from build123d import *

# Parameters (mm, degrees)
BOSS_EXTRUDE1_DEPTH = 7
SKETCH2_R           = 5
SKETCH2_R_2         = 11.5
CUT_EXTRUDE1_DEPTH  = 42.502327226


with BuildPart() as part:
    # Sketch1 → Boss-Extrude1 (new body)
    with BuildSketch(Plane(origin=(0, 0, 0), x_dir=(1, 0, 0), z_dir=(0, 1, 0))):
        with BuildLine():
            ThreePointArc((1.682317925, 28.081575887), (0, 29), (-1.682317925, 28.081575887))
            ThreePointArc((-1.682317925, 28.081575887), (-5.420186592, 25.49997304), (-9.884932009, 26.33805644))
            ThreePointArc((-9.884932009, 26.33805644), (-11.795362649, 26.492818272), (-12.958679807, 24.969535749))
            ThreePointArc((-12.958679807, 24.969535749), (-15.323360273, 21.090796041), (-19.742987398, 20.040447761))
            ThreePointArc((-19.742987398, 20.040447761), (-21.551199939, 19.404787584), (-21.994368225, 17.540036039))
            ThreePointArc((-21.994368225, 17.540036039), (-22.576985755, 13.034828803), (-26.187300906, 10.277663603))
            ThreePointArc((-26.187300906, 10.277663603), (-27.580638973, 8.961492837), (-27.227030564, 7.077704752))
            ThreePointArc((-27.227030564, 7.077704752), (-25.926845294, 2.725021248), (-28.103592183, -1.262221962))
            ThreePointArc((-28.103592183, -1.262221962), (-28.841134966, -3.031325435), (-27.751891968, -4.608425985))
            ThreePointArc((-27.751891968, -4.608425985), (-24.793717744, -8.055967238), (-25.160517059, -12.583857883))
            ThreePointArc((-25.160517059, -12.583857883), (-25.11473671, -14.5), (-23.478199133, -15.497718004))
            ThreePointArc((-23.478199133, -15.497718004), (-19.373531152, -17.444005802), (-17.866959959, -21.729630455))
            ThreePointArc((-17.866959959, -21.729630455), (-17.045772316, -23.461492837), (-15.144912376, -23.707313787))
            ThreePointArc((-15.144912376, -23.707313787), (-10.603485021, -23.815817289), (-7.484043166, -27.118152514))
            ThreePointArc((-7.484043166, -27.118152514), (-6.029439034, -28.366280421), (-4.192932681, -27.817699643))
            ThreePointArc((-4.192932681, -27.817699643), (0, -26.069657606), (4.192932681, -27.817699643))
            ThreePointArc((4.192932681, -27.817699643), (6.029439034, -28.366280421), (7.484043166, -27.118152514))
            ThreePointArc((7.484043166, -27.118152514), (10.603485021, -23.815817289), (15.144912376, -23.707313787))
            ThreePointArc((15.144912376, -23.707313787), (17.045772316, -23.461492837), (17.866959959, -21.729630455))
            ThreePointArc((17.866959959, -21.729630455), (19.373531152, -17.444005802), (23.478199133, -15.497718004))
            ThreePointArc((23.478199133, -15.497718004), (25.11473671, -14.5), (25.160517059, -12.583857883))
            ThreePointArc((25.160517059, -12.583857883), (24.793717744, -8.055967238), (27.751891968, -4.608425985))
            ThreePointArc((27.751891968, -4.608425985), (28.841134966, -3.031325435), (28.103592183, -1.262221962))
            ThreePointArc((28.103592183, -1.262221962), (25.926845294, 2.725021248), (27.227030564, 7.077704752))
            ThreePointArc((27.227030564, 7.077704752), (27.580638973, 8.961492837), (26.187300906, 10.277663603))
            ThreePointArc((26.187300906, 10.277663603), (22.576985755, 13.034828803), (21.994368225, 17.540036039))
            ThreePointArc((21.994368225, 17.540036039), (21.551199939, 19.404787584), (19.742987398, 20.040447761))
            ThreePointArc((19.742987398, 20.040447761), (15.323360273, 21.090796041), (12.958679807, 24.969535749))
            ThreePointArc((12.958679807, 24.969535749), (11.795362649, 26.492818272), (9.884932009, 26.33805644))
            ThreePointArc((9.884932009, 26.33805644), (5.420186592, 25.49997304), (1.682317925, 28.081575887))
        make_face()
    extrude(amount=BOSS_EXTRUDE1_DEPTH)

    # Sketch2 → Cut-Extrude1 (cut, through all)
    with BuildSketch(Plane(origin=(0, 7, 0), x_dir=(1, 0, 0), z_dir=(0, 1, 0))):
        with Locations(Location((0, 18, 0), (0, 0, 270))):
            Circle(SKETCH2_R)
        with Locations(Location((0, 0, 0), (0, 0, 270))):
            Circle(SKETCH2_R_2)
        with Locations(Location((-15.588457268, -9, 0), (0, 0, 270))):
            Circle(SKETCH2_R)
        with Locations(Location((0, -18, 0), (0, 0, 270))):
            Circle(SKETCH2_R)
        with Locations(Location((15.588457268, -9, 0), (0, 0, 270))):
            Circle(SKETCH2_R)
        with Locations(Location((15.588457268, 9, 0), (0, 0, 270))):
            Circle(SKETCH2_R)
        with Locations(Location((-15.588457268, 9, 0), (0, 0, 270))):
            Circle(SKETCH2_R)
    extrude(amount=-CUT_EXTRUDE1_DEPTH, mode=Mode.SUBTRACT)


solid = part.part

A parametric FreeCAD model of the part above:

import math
import FreeCAD as App
import Part
import Sketcher
from FreeCAD import Vector
Q = App.Units.Quantity

doc = App.newDocument("Part")
body = doc.addObject("PartDesign::Body", "Body")

# Sketch on XZ plane
sketch1 = body.newObject("Sketcher::SketchObject", "Sketch")
sketch1.AttachmentSupport = (doc.getObject("XZ_Plane"), [""])
sketch1.MapMode = "FlatFace"
sketch1.addGeometry([
    Part.ArcOfCircle(Part.Circle(Vector(0, -27, 0), Vector(0, 0, 1), 2), math.radians(-147.262706), math.radians(-32.737294)),  # 0
    Part.ArcOfCircle(Part.Circle(Vector(-6.647427, -31.273685, 0), Vector(0, 0, 1), 5.9027), math.radians(32.737294), math.radians(123.262706)),  # 1
    Part.ArcOfCircle(Part.Circle(Vector(-10.981889, -24.665727, 0), Vector(0, 0, 1), 2), math.radians(-171.262706), math.radians(-56.737294)),  # 2
    Part.ArcOfCircle(Part.Circle(Vector(-18.79288, -25.866181, 0), Vector(0, 0, 1), 5.9027), math.radians(8.737294), math.radians(99.262706)),  # 3
    Part.ArcOfCircle(Part.Circle(Vector(-20.06491, -18.066526, 0), Vector(0, 0, 1), 2), math.radians(164.737294), math.radians(279.262706)),  # 4
    Part.ArcOfCircle(Part.Circle(Vector(-27.688874, -15.986179, 0), Vector(0, 0, 1), 5.9027), math.radians(-15.262706), math.radians(75.262706)),  # 5
    Part.ArcOfCircle(Part.Circle(Vector(-25.678526, -8.343459, 0), Vector(0, 0, 1), 2), math.radians(140.737294), math.radians(255.262706)),  # 6
    Part.ArcOfCircle(Part.Circle(Vector(-31.79721, -3.342021, 0), Vector(0, 0, 1), 5.9027), math.radians(-39.262706), math.radians(51.262706)),  # 7
    Part.ArcOfCircle(Part.Circle(Vector(-26.852091, 2.822269, 0), Vector(0, 0, 1), 2), math.radians(116.737294), math.radians(231.262706)),  # 8
    Part.ArcOfCircle(Part.Circle(Vector(-30.407519, 9.880002, 0), Vector(0, 0, 1), 5.9027), math.radians(-63.262706), math.radians(27.262706)),  # 9
    Part.ArcOfCircle(Part.Circle(Vector(-23.382686, 13.5, 0), Vector(0, 0, 1), 2), math.radians(92.737294), math.radians(207.262706)),  # 10
    Part.ArcOfCircle(Part.Circle(Vector(-23.760092, 21.393683, 0), Vector(0, 0, 1), 5.9027), math.radians(-87.262706), math.radians(3.262706)),  # 11
    Part.ArcOfCircle(Part.Circle(Vector(-15.870202, 21.843459, 0), Vector(0, 0, 1), 2), math.radians(68.737294), math.radians(183.262706)),  # 12
    Part.ArcOfCircle(Part.Circle(Vector(-13.004329, 29.208202, 0), Vector(0, 0, 1), 5.9027), math.radians(-111.262706), math.radians(-20.737294)),  # 13
    Part.ArcOfCircle(Part.Circle(Vector(-5.613616, 26.409985, 0), Vector(0, 0, 1), 2), math.radians(44.737294), math.radians(159.262706)),  # 14
    Part.ArcOfCircle(Part.Circle(Vector(0, 31.972358, 0), Vector(0, 0, 1), 5.9027), math.radians(-135.262706), math.radians(-44.737294)),  # 15
    Part.ArcOfCircle(Part.Circle(Vector(5.613616, 26.409985, 0), Vector(0, 0, 1), 2), math.radians(20.737294), math.radians(135.262706)),  # 16
    Part.ArcOfCircle(Part.Circle(Vector(13.004329, 29.208202, 0), Vector(0, 0, 1), 5.9027), math.radians(-159.262706), math.radians(-68.737294)),  # 17
    Part.ArcOfCircle(Part.Circle(Vector(15.870202, 21.843459, 0), Vector(0, 0, 1), 2), math.radians(-3.262706), math.radians(111.262706)),  # 18
    Part.ArcOfCircle(Part.Circle(Vector(23.760092, 21.393683, 0), Vector(0, 0, 1), 5.9027), math.radians(176.737294), math.radians(267.262706)),  # 19
    Part.ArcOfCircle(Part.Circle(Vector(23.382686, 13.5, 0), Vector(0, 0, 1), 2), math.radians(-27.262706), math.radians(87.262706)),  # 20
    Part.ArcOfCircle(Part.Circle(Vector(30.407519, 9.880002, 0), Vector(0, 0, 1), 5.9027), math.radians(152.737294), math.radians(243.262706)),  # 21
    Part.ArcOfCircle(Part.Circle(Vector(26.852091, 2.822269, 0), Vector(0, 0, 1), 2), math.radians(-51.262706), math.radians(63.262706)),  # 22
    Part.ArcOfCircle(Part.Circle(Vector(31.79721, -3.342021, 0), Vector(0, 0, 1), 5.9027), math.radians(128.737294), math.radians(219.262706)),  # 23
    Part.ArcOfCircle(Part.Circle(Vector(25.678526, -8.343459, 0), Vector(0, 0, 1), 2), math.radians(-75.262706), math.radians(39.262706)),  # 24
    Part.ArcOfCircle(Part.Circle(Vector(27.688874, -15.986179, 0), Vector(0, 0, 1), 5.9027), math.radians(104.737294), math.radians(195.262706)),  # 25
    Part.ArcOfCircle(Part.Circle(Vector(20.06491, -18.066526, 0), Vector(0, 0, 1), 2), math.radians(-99.262706), math.radians(15.262706)),  # 26
    Part.ArcOfCircle(Part.Circle(Vector(18.79288, -25.866181, 0), Vector(0, 0, 1), 5.9027), math.radians(80.737294), math.radians(171.262706)),  # 27
    Part.ArcOfCircle(Part.Circle(Vector(10.981889, -24.665727, 0), Vector(0, 0, 1), 2), math.radians(-123.262706), math.radians(-8.737294)),  # 28
    Part.ArcOfCircle(Part.Circle(Vector(6.647427, -31.273685, 0), Vector(0, 0, 1), 5.9027), math.radians(56.737294), math.radians(147.262706)),  # 29
], False)
sketch1.addConstraint([
    Sketcher.Constraint("Coincident", 0, 1, 1, 1),
    Sketcher.Constraint("Coincident", 1, 2, 2, 2),
    Sketcher.Constraint("Coincident", 2, 1, 3, 1),
    Sketcher.Constraint("Coincident", 3, 2, 4, 2),
    Sketcher.Constraint("Coincident", 4, 1, 5, 1),
    Sketcher.Constraint("Coincident", 5, 2, 6, 2),
    Sketcher.Constraint("Coincident", 6, 1, 7, 1),
    Sketcher.Constraint("Coincident", 7, 2, 8, 2),
    Sketcher.Constraint("Coincident", 8, 1, 9, 1),
    Sketcher.Constraint("Coincident", 9, 2, 10, 2),
    Sketcher.Constraint("Coincident", 10, 1, 11, 1),
    Sketcher.Constraint("Coincident", 11, 2, 12, 2),
    Sketcher.Constraint("Coincident", 12, 1, 13, 1),
    Sketcher.Constraint("Coincident", 13, 2, 14, 2),
    Sketcher.Constraint("Coincident", 14, 1, 15, 1),
    Sketcher.Constraint("Coincident", 15, 2, 16, 2),
    Sketcher.Constraint("Coincident", 16, 1, 17, 1),
    Sketcher.Constraint("Coincident", 17, 2, 18, 2),
    Sketcher.Constraint("Coincident", 18, 1, 19, 1),
    Sketcher.Constraint("Coincident", 19, 2, 20, 2),
    Sketcher.Constraint("Coincident", 20, 1, 21, 1),
    Sketcher.Constraint("Coincident", 21, 2, 22, 2),
    Sketcher.Constraint("Coincident", 22, 1, 23, 1),
    Sketcher.Constraint("Coincident", 23, 2, 24, 2),
    Sketcher.Constraint("Coincident", 24, 1, 25, 1),
    Sketcher.Constraint("Coincident", 25, 2, 26, 2),
    Sketcher.Constraint("Coincident", 26, 1, 27, 1),
    Sketcher.Constraint("Coincident", 27, 2, 28, 2),
    Sketcher.Constraint("Coincident", 28, 1, 29, 1),
    Sketcher.Constraint("Coincident", 29, 2, 0, 2),
    Sketcher.Constraint("PointOnObject", 0, 3, -2),
    Sketcher.Constraint("PointOnObject", 15, 3, -2),
    Sketcher.Constraint("Radius", 0, Q("2 mm")),
    Sketcher.Constraint("Radius", 2, Q("2 mm")),
    Sketcher.Constraint("Radius", 4, Q("2 mm")),
    Sketcher.Constraint("Radius", 6, Q("2 mm")),
    Sketcher.Constraint("Radius", 8, Q("2 mm")),
    Sketcher.Constraint("Radius", 10, Q("2 mm")),
    Sketcher.Constraint("Radius", 12, Q("2 mm")),
    Sketcher.Constraint("Radius", 14, Q("2 mm")),
    Sketcher.Constraint("Radius", 16, Q("2 mm")),
    Sketcher.Constraint("Radius", 18, Q("2 mm")),
    Sketcher.Constraint("Radius", 20, Q("2 mm")),
    Sketcher.Constraint("Radius", 22, Q("2 mm")),
    Sketcher.Constraint("Radius", 24, Q("2 mm")),
    Sketcher.Constraint("Radius", 26, Q("2 mm")),
    Sketcher.Constraint("Radius", 28, Q("2 mm")),
    Sketcher.Constraint("DistanceY", 0, 3, -1, 1, Q("27 mm")),
    Sketcher.Constraint("DistanceY", -1, 1, 10, 3, Q("13.5 mm")),
    Sketcher.Constraint("DistanceY", -1, 1, 20, 3, Q("13.5 mm")),
    Sketcher.Constraint("Radius", 1, Q("5.9027 mm")),
    Sketcher.Constraint("Radius", 3, Q("5.9027 mm")),
    Sketcher.Constraint("Radius", 5, Q("5.9027 mm")),
    Sketcher.Constraint("Radius", 7, Q("5.9027 mm")),
    Sketcher.Constraint("Radius", 9, Q("5.9027 mm")),
    Sketcher.Constraint("Radius", 11, Q("5.9027 mm")),
    Sketcher.Constraint("Radius", 13, Q("5.9027 mm")),
    Sketcher.Constraint("Radius", 15, Q("5.9027 mm")),
    Sketcher.Constraint("Radius", 17, Q("5.9027 mm")),
    Sketcher.Constraint("Radius", 19, Q("5.9027 mm")),
    Sketcher.Constraint("Radius", 21, Q("5.9027 mm")),
    Sketcher.Constraint("Radius", 23, Q("5.9027 mm")),
    Sketcher.Constraint("Radius", 25, Q("5.9027 mm")),
    Sketcher.Constraint("Radius", 27, Q("5.9027 mm")),
    Sketcher.Constraint("Radius", 29, Q("5.9027 mm")),
    Sketcher.Constraint("DistanceY", -1, 1, 9, 3, Q("9.880002 mm")),
    Sketcher.Constraint("DistanceY", -1, 1, 21, 3, Q("9.880002 mm")),
    Sketcher.Constraint("DistanceY", 3, 3, 5, 3, Q("9.880002 mm")),
    Sketcher.Constraint("DistanceY", 27, 3, 25, 3, Q("9.880002 mm")),
    Sketcher.Constraint("DistanceX", 8, 3, 11, 3, Q("3.091999 mm")),
    Sketcher.Constraint("DistanceX", 19, 3, 22, 3, Q("3.091999 mm")),
    Sketcher.Constraint("DistanceX", 9, 3, 9, 2, Q("5.247002 mm")),
    Sketcher.Constraint("DistanceX", 20, 1, 21, 3, Q("5.247002 mm")),
    Sketcher.Constraint("DistanceX", 12, 3, -1, 1, Q("15.870202 mm")),
    Sketcher.Constraint("DistanceX", -1, 1, 18, 3, Q("15.870202 mm")),
    Sketcher.Constraint("DistanceX", 5, 2, -1, 1, Q("26.187301 mm")),
    Sketcher.Constraint("DistanceX", 10, 1, -1, 1, Q("23.478199 mm")),
    Sketcher.Constraint("DistanceY", -1, 1, 14, 1, Q("27.8177 mm")),
    Sketcher.Constraint("DistanceY", -1, 1, 15, 2, Q("27.8177 mm")),
    Sketcher.Constraint("DistanceX", -1, 1, 19, 2, Q("23.478199 mm")),
    Sketcher.Constraint("DistanceX", -1, 1, 24, 1, Q("26.187301 mm")),
    Sketcher.Constraint("DistanceY", 2, 3, 4, 3, Q("6.599201 mm")),
    Sketcher.Constraint("DistanceX", 6, 3, 1, 3, Q("19.031099 mm")),
    Sketcher.Constraint("DistanceX", 7, 3, 4, 3, Q("11.732299 mm")),
    Sketcher.Constraint("DistanceY", 9, 3, 13, 3, Q("19.3282 mm")),
    Sketcher.Constraint("DistanceY", 12, 3, 15, 3, Q("10.128899 mm")),
    Sketcher.Constraint("DistanceY", 18, 3, 15, 3, Q("10.128899 mm")),
    Sketcher.Constraint("DistanceY", 21, 3, 17, 3, Q("19.3282 mm")),
    Sketcher.Constraint("DistanceX", 26, 3, 23, 3, Q("11.732299 mm")),
    Sketcher.Constraint("DistanceY", 28, 3, 26, 3, Q("6.599201 mm")),
    Sketcher.Constraint("DistanceX", 3, 3, 2, 1, Q("5.8342 mm")),
    Sketcher.Constraint("DistanceX", 3, 2, 2, 3, Q("8.761098 mm")),
    Sketcher.Constraint("DistanceX", 7, 2, 8, 3, Q("1.251501 mm")),
    Sketcher.Constraint("DistanceX", 8, 1, 8, 3, Q("0.899801 mm")),
    Sketcher.Constraint("DistanceX", 22, 3, 21, 2, Q("0.899801 mm")),
    Sketcher.Constraint("DistanceX", 22, 3, 22, 1, Q("1.251501 mm")),
    Sketcher.Constraint("DistanceX", 28, 3, 26, 1, Q("8.761098 mm")),
    Sketcher.Constraint("DistanceX", 27, 2, 27, 3, Q("5.8342 mm")),
    Sketcher.Constraint("DistanceX", 2, 3, -1, 1, Q("10.981889 mm")),
    Sketcher.Constraint("DistanceX", 3, 3, -1, 1, Q("18.79288 mm")),
    Sketcher.Constraint("DistanceY", 3, 3, -1, 1, Q("25.866181 mm")),
    Sketcher.Constraint("DistanceX", 8, 3, -1, 1, Q("26.852091 mm")),
    Sketcher.Constraint("DistanceX", -1, 1, 21, 3, Q("30.407519 mm")),
    Sketcher.Constraint("DistanceX", -1, 1, 23, 3, Q("31.79721 mm")),
    Sketcher.Constraint("DistanceY", 24, 3, -1, 1, Q("8.343459 mm")),
    Sketcher.Constraint("DistanceY", 25, 3, -1, 1, Q("15.986179 mm")),
    Sketcher.Constraint("DistanceX", 4, 1, -1, 1, Q("21.994368 mm")),
    Sketcher.Constraint("DistanceX", 6, 1, -1, 1, Q("27.227031 mm")),
    Sketcher.Constraint("DistanceX", 11, 2, -1, 1, Q("17.86696 mm")),
    Sketcher.Constraint("DistanceX", -1, 1, 18, 1, Q("17.86696 mm")),
    Sketcher.Constraint("DistanceX", -1, 1, 23, 2, Q("27.227031 mm")),
    Sketcher.Constraint("DistanceX", -1, 1, 25, 2, Q("21.994368 mm")),
    Sketcher.Constraint("DistanceX", 1, 3, 0, 1, Q("4.965109 mm")),
    Sketcher.Constraint("DistanceY", 1, 2, 2, 3, Q("1.672329 mm")),
    Sketcher.Constraint("DistanceX", 12, 3, 12, 1, Q("0.725289 mm")),
    Sketcher.Constraint("DistanceY", 13, 2, 13, 3, Q("2.09005 mm")),
    Sketcher.Constraint("DistanceX", 15, 2, 16, 1, Q("3.29111 mm")),
    Sketcher.Constraint("DistanceX", 17, 2, 18, 3, Q("0.725289 mm")),
    Sketcher.Constraint("DistanceY", 28, 1, 28, 3, Q("1.672329 mm")),
    Sketcher.Constraint("DistanceX", 29, 2, 29, 3, Q("4.965109 mm")),
])
pad1 = body.newObject("PartDesign::Pad", "Pad")
pad1.Profile = sketch1
pad1.Length = 7
pad1.Reversed = True

# Sketch on XZ plane
sketch2 = body.newObject("Sketcher::SketchObject", "Sketch001")
sketch2.AttachmentSupport = (doc.getObject("XZ_Plane"), [""])
sketch2.MapMode = "FlatFace"
sketch2.AttachmentOffset = App.Placement(Vector(0, 0, -7), App.Rotation())
sketch2.addGeometry([
    Part.Circle(Vector(0, -18, 0), Vector(0, 0, 1), 5),  # 0
    Part.Circle(Vector(0, 0, 0), Vector(0, 0, 1), 12),  # 1
    Part.Circle(Vector(-16, 9, 0), Vector(0, 0, 1), 5),  # 2
    Part.Circle(Vector(0, 18, 0), Vector(0, 0, 1), 5),  # 3
    Part.Circle(Vector(16, 9, 0), Vector(0, 0, 1), 5),  # 4
    Part.Circle(Vector(16, -9, 0), Vector(0, 0, 1), 5),  # 5
    Part.Circle(Vector(-16, -9, 0), Vector(0, 0, 1), 5),  # 6
], False)
sketch2.addConstraint([
    Sketcher.Constraint("Coincident", 1, 3, -1, 1),
    Sketcher.Constraint("Equal", 0, 2),
    Sketcher.Constraint("Equal", 2, 3),
    Sketcher.Constraint("Equal", 3, 4),
    Sketcher.Constraint("Equal", 4, 5),
    Sketcher.Constraint("Equal", 5, 6),
    Sketcher.Constraint("Symmetric", 0, 3, 3, 3, -1, 1),
    Sketcher.Constraint("Symmetric", 2, 3, 5, 3, -1, 1),
    Sketcher.Constraint("Symmetric", 4, 3, 6, 3, -1, 1),
    Sketcher.Constraint("Symmetric", 2, 3, 4, 3, -2),
    Sketcher.Constraint("PointOnObject", 0, 3, -2),
    Sketcher.Constraint("Diameter", 0, Q("10 mm")),
    Sketcher.Constraint("Diameter", 1, Q("23 mm")),
    Sketcher.Constraint("DistanceY", 0, 3, -1, 1, Q("18 mm")),
    Sketcher.Constraint("DistanceY", -1, 1, 2, 3, Q("9 mm")),
    Sketcher.Constraint("DistanceX", 2, 3, -1, 1, Q("15.588457 mm")),
])
pocket1 = body.newObject("PartDesign::Pocket", "Pocket")
pocket1.Profile = sketch2
pocket1.Type = "ThroughAll"
pocket1.Reversed = True

doc.recompute()
